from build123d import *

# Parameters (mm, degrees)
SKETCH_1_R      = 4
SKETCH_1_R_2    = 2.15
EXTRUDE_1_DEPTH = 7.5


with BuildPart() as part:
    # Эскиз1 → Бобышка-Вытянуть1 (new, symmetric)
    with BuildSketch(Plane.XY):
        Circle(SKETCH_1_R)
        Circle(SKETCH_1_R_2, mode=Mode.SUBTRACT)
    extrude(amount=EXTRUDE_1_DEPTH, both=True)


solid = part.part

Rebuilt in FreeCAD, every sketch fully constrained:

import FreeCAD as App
import Part
import Sketcher

doc = App.newDocument("Part")
body = doc.addObject("PartDesign::Body", "Body")

sketch1 = body.newObject("Sketcher::SketchObject", "Sketch")
sketch1.AttachmentSupport = (doc.getObject("XY_Plane"), [""])
sketch1.MapMode = "FlatFace"
sketch1.addGeometry(Part.Circle(App.Vector(0, 0, 0), App.Vector(0, 0, 1), 4), False)
sketch1.addGeometry(Part.Circle(App.Vector(0, 0, 0), App.Vector(0, 0, 1), 2.15), False)
sketch1.addConstraint(Sketcher.Constraint("Coincident", 0, 3, -1, 1))
sketch1.addConstraint(Sketcher.Constraint("Coincident", 1, 3, -1, 1))
sketch1.addConstraint(Sketcher.Constraint("Diameter", 0, 8.0))
sketch1.addConstraint(Sketcher.Constraint("Diameter", 1, 4.3))
pad1 = body.newObject("PartDesign::Pad", "Pad")
pad1.Profile = sketch1
pad1.Length = 15
pad1.Midplane = True

doc.recompute()
